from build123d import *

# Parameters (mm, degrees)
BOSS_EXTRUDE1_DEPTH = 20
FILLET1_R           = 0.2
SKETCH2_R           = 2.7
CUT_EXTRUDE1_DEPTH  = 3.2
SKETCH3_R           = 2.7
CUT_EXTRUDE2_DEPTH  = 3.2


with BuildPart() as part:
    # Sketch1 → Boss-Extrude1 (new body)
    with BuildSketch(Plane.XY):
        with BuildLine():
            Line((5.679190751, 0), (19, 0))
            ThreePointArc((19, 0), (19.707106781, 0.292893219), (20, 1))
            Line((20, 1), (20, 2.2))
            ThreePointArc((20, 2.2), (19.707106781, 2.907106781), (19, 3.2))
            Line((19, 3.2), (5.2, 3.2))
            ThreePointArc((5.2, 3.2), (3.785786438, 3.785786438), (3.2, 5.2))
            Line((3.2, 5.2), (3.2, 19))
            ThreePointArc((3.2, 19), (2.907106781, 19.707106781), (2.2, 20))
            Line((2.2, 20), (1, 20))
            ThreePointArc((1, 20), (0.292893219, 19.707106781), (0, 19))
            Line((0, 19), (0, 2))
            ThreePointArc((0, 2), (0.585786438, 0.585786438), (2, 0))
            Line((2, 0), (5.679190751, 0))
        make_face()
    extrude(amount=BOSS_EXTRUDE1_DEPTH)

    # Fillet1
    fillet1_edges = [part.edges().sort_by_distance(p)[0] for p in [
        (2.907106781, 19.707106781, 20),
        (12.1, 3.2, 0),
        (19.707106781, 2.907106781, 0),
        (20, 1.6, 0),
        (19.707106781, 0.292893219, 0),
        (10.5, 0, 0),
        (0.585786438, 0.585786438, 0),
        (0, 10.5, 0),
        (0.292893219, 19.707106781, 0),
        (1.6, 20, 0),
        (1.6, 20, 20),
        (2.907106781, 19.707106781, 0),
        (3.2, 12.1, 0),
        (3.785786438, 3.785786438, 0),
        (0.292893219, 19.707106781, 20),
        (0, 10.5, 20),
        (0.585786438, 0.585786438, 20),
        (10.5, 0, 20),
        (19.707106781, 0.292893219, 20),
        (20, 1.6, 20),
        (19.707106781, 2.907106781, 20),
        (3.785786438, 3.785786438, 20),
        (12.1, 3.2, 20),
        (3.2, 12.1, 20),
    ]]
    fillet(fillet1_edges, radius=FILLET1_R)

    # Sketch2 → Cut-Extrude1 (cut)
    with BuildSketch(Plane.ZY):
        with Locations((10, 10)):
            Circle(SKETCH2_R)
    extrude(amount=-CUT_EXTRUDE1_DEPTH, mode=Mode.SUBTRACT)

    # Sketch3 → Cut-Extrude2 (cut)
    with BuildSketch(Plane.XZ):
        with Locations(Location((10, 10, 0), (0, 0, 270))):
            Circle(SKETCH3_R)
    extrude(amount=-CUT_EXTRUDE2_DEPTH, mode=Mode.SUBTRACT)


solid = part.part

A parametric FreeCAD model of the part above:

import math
import FreeCAD as App
import Part
import Sketcher

V = App.Vector


def edges_at(feature, points):
    """Names of the edges that pass closest to the given points."""
    edges = feature.Shape.Edges
    near = lambda p: min(range(len(edges)), key=lambda i: edges[i].distToShape(Part.Vertex(*p))[0])
    return sorted({f"Edge{near(p) + 1}" for p in points})

doc = App.newDocument("Part")
body = doc.addObject("PartDesign::Body", "Body")

sketch1 = doc.addObject("Sketcher::SketchObject", "Sketch")
body.addObject(sketch1)
sketch1.AttachmentSupport = (doc.XY_Plane, [""])
sketch1.MapMode = "FlatFace"
sketch1.addGeometry(Part.ArcOfCircle(Part.Circle(V(19, 1, 0), V(0, 0, 1), 1), math.radians(-90), math.radians(0)), False)
sketch1.addGeometry(Part.LineSegment(V(20, 1, 0), V(20, 2.2, 0)), False)
sketch1.addGeometry(Part.ArcOfCircle(Part.Circle(V(19, 2.2, 0), V(0, 0, 1), 1), math.radians(0), math.radians(90)), False)
sketch1.addGeometry(Part.LineSegment(V(19, 3.2, 0), V(5.2, 3.2, 0)), False)
sketch1.addGeometry(Part.ArcOfCircle(Part.Circle(V(5.2, 5.2, 0), V(0, 0, 1), 2), math.radians(-180), math.radians(-90)), False)
sketch1.addGeometry(Part.LineSegment(V(3.2, 5.2, 0), V(3.2, 19, 0)), False)
sketch1.addGeometry(Part.ArcOfCircle(Part.Circle(V(2.2, 19, 0), V(0, 0, 1), 1), math.radians(0), math.radians(90)), False)
sketch1.addGeometry(Part.LineSegment(V(2.2, 20, 0), V(1, 20, 0)), False)
sketch1.addGeometry(Part.ArcOfCircle(Part.Circle(V(1, 19, 0), V(0, 0, 1), 1), math.radians(90), math.radians(180)), False)
sketch1.addGeometry(Part.LineSegment(V(0, 19, 0), V(0, 2, 0)), False)
sketch1.addGeometry(Part.ArcOfCircle(Part.Circle(V(2, 2, 0), V(0, 0, 1), 2), math.radians(-180), math.radians(-90)), False)
sketch1.addGeometry(Part.LineSegment(V(2, 0, 0), V(19, 0, 0)), False)
sketch1.addConstraint(Sketcher.Constraint("Tangent", 0, 2, 1, 1))
sketch1.addConstraint(Sketcher.Constraint("Tangent", 1, 2, 2, 1))
sketch1.addConstraint(Sketcher.Constraint("Tangent", 2, 2, 3, 1))
sketch1.addConstraint(Sketcher.Constraint("Tangent", 3, 2, 4, 2))
sketch1.addConstraint(Sketcher.Constraint("Tangent", 4, 1, 5, 1))
sketch1.addConstraint(Sketcher.Constraint("Tangent", 5, 2, 6, 1))
sketch1.addConstraint(Sketcher.Constraint("Tangent", 6, 2, 7, 1))
sketch1.addConstraint(Sketcher.Constraint("Tangent", 7, 2, 8, 1))
sketch1.addConstraint(Sketcher.Constraint("Tangent", 8, 2, 9, 1))
sketch1.addConstraint(Sketcher.Constraint("Tangent", 9, 2, 10, 1))
sketch1.addConstraint(Sketcher.Constraint("Tangent", 10, 2, 11, 1))
sketch1.addConstraint(Sketcher.Constraint("Tangent", 11, 2, 0, 1))
sketch1.addConstraint(Sketcher.Constraint("Vertical", 1))
sketch1.addConstraint(Sketcher.Constraint("Horizontal", 3))
sketch1.addConstraint(Sketcher.Constraint("Vertical", 5))
sketch1.addConstraint(Sketcher.Constraint("Horizontal", 7))
sketch1.addConstraint(Sketcher.Constraint("Vertical", 9))
sketch1.addConstraint(Sketcher.Constraint("Horizontal", 11))
sketch1.addConstraint(Sketcher.Constraint("Equal", 0, 2))
sketch1.addConstraint(Sketcher.Constraint("Equal", 2, 6))
sketch1.addConstraint(Sketcher.Constraint("Equal", 6, 8))
sketch1.addConstraint(Sketcher.Constraint("Equal", 4, 10))
sketch1.addConstraint(Sketcher.Constraint("PointOnObject", 8, 2, -2))
sketch1.addConstraint(Sketcher.Constraint("PointOnObject", 10, 2, -1))
sketch1.addConstraint(Sketcher.Constraint("Equal", 7, 1))
sketch1.addConstraint(Sketcher.Constraint("Equal", 3, 5))
sketch1.addConstraint(Sketcher.Constraint("Radius", 0, 1.0))
sketch1.addConstraint(Sketcher.Constraint("Radius", 4, 2.0))
sketch1.addConstraint(Sketcher.Constraint("DistanceX", 11, 1, 11, 2, 17.0))
sketch1.addConstraint(Sketcher.Constraint("DistanceX", 3, 2, 3, 1, 13.8))
pad1 = doc.addObject("PartDesign::Pad", "Pad")
body.addObject(pad1)
pad1.Profile = sketch1
pad1.Length = 20
doc.recompute()

fillet = doc.addObject("PartDesign::Fillet", "Fillet")
body.addObject(fillet)
fillet.Base = (pad1, edges_at(pad1, [
    (2.907, 19.707, 20),
    (12.1, 3.2, 0),
    (19.707, 2.907, 0),
    (20, 1.6, 0),
    (19.707, 0.293, 0),
    (10.5, 0, 0),
    (0.586, 0.586, 0),
    (0, 10.5, 0),
    (0.293, 19.707, 0),
    (1.6, 20, 0),
    (1.6, 20, 20),
    (2.907, 19.707, 0),
    (3.2, 12.1, 0),
    (3.786, 3.786, 0),
    (0.293, 19.707, 20),
    (0, 10.5, 20),
    (0.586, 0.586, 20),
    (10.5, 0, 20),
    (19.707, 0.293, 20),
    (20, 1.6, 20),
    (19.707, 2.907, 20),
    (3.786, 3.786, 20),
    (12.1, 3.2, 20),
    (3.2, 12.1, 20),
]))
fillet.Radius = 0.2

sketch2 = doc.addObject("Sketcher::SketchObject", "Sketch001")
body.addObject(sketch2)
sketch2.AttachmentSupport = (doc.YZ_Plane, [""])
sketch2.MapMode = "FlatFace"
sketch2.addGeometry(Part.Circle(V(10, 10, 0), V(0, 0, 1), 2.7), False)
sketch2.addConstraint(Sketcher.Constraint("Diameter", 0, 5.4))
sketch2.addConstraint(Sketcher.Constraint("DistanceX", -1, 1, 0, 3, 10.0))
sketch2.addConstraint(Sketcher.Constraint("DistanceY", -1, 1, 0, 3, 10.0))
pocket1 = doc.addObject("PartDesign::Pocket", "Pocket")
body.addObject(pocket1)
pocket1.Profile = sketch2
pocket1.Length = 3.2
pocket1.Reversed = True

sketch3 = doc.addObject("Sketcher::SketchObject", "Sketch002")
body.addObject(sketch3)
sketch3.AttachmentSupport = (doc.XZ_Plane, [""])
sketch3.MapMode = "FlatFace"
sketch3.addGeometry(Part.Circle(V(10, 10, 0), V(0, 0, 1), 2.7), False)
sketch3.addConstraint(Sketcher.Constraint("Diameter", 0, 5.4))
sketch3.addConstraint(Sketcher.Constraint("DistanceX", -1, 1, 0, 3, 10.0))
sketch3.addConstraint(Sketcher.Constraint("DistanceY", -1, 1, 0, 3, 10.0))
pocket2 = doc.addObject("PartDesign::Pocket", "Pocket001")
body.addObject(pocket2)
pocket2.Profile = sketch3
pocket2.Length = 3.2

doc.recompute()
